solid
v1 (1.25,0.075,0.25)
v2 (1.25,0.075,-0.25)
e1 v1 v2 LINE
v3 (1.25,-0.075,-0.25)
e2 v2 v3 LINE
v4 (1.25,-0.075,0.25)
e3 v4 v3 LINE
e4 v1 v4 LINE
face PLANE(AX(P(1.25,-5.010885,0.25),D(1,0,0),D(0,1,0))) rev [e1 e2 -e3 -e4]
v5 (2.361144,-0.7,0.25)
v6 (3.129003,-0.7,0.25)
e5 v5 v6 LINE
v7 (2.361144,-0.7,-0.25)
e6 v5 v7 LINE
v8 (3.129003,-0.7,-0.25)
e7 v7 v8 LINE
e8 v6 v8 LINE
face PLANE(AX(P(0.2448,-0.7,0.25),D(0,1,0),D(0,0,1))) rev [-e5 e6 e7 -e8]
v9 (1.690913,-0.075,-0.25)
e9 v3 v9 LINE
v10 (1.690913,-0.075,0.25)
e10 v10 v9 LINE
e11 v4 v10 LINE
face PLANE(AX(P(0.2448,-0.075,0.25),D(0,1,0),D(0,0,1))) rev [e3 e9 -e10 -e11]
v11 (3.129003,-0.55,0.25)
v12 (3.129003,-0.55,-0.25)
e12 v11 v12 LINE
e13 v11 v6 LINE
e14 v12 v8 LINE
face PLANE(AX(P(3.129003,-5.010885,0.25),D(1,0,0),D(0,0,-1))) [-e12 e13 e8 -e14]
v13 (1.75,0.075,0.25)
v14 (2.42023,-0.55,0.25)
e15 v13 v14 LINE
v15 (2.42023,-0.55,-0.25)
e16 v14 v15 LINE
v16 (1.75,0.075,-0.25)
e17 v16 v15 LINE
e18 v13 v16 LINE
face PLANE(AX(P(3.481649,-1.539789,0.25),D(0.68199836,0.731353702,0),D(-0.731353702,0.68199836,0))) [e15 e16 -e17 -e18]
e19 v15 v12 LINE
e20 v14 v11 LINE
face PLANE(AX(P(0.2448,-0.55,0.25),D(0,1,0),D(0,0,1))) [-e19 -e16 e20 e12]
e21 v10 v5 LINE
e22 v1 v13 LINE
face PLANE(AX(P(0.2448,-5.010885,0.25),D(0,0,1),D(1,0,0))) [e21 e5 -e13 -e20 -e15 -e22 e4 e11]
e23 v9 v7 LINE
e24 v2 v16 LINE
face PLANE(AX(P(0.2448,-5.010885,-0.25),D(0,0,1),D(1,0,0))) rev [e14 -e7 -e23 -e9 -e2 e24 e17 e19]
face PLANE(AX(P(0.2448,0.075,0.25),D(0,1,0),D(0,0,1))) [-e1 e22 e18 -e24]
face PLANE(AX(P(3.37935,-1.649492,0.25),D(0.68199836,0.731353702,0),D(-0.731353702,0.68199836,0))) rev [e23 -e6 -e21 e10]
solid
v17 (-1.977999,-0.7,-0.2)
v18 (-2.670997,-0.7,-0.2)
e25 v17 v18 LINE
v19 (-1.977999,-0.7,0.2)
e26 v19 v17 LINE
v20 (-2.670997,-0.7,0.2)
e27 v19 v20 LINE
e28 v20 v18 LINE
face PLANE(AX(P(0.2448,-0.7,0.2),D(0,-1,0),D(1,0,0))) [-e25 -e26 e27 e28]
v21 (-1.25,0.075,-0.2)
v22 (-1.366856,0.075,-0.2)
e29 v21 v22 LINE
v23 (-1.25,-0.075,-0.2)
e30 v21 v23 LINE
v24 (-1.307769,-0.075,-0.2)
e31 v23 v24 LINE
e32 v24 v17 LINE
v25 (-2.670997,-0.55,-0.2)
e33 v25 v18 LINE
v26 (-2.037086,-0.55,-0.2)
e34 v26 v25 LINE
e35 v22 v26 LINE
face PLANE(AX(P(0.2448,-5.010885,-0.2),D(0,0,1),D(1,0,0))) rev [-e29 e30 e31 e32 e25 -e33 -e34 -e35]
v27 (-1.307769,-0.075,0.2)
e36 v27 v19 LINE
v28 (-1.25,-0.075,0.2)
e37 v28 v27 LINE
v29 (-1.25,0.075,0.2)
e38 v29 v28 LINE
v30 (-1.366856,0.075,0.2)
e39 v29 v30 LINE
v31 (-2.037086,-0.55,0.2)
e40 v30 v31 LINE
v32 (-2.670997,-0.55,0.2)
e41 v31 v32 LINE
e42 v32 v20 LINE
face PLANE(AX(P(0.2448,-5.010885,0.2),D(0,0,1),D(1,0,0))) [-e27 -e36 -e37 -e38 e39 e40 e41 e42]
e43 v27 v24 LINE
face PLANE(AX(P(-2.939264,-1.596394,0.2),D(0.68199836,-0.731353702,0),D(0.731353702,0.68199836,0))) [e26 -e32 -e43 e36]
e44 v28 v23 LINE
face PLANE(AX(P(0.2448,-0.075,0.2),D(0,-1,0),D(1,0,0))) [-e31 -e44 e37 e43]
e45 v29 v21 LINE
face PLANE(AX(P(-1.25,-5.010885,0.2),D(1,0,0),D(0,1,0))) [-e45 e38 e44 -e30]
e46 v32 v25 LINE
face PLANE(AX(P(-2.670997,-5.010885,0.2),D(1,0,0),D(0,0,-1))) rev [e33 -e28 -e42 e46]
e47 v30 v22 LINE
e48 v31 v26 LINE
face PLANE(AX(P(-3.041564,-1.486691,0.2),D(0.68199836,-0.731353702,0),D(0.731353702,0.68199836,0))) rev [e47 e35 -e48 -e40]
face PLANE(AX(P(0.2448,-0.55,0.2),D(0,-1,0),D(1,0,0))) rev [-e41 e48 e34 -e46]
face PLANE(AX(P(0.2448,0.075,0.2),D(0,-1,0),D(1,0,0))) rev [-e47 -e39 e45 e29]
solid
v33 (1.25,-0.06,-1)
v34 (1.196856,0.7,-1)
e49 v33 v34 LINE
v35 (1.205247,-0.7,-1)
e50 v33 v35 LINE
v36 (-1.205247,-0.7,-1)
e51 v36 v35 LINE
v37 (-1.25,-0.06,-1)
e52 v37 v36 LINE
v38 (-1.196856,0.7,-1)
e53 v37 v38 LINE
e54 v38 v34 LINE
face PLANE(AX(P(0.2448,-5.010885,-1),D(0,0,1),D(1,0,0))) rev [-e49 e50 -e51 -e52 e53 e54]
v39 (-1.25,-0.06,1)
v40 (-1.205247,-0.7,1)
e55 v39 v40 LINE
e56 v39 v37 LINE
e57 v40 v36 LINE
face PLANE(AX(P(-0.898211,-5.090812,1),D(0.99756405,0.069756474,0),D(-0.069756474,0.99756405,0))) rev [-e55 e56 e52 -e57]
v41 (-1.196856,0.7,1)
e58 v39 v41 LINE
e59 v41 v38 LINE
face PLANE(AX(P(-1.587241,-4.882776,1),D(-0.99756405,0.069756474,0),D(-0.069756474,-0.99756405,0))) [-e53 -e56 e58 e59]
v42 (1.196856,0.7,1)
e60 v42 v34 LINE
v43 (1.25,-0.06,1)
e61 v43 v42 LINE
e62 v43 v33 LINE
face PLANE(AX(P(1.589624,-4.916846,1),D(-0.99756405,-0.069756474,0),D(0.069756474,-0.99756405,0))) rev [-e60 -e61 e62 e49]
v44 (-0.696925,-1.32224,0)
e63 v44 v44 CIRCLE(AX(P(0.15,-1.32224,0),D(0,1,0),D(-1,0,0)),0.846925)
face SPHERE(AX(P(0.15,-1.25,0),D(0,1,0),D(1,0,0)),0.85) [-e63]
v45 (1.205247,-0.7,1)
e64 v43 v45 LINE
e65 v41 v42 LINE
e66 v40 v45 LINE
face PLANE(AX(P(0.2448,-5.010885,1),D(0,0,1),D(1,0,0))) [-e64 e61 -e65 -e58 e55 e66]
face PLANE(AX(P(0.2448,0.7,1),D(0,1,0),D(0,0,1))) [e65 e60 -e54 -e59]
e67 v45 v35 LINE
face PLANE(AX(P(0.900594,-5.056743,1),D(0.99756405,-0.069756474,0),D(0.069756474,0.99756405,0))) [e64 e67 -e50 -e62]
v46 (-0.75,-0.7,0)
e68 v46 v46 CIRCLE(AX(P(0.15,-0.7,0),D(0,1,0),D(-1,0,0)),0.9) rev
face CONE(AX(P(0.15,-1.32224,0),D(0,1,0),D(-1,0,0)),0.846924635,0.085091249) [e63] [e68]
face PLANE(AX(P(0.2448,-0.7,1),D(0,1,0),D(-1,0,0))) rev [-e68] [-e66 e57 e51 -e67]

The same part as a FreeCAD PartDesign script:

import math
import FreeCAD as App
import Part
import Sketcher
Q = App.Units.Quantity


def add_polygon(sketch, points):
    """Adds a closed chain of lines whose ends are joined by coincident constraints."""
    first, n = sketch.GeometryCount, len(points)
    for a, b in zip(points, points[1:] + points[:1]):
        sketch.addGeometry(Part.LineSegment(App.Vector(*a, 0), App.Vector(*b, 0)), False)
    for i in range(n):
        sketch.addConstraint(Sketcher.Constraint("Coincident", first + i, 2, first + (i + 1) % n, 1))

doc = App.newDocument("Part")
body = doc.addObject("PartDesign::Body", "Body")

sketch1 = doc.addObject("Sketcher::SketchObject", "Sketch")
body.addObject(sketch1)
sketch1.AttachmentSupport = (doc.XY_Plane, [""])
sketch1.MapMode = "FlatFace"
add_polygon(sketch1, [(1.196856, 0.7), (-1.196856, 0.7), (-1.25, -0.06), (-1.205247, -0.7), (1.205247, -0.7), (1.25, -0.06)])
sketch1.addConstraint(Sketcher.Constraint("Horizontal", 0))
sketch1.addConstraint(Sketcher.Constraint("Horizontal", 3))
sketch1.addConstraint(Sketcher.Constraint("Symmetric", 1, 2, 4, 2, -2))
sketch1.addConstraint(Sketcher.Constraint("Parallel", 1, 4))
sketch1.addConstraint(Sketcher.Constraint("Parallel", 2, 5))
sketch1.addConstraint(Sketcher.Constraint("Equal", 2, 4))
sketch1.addConstraint(Sketcher.Constraint("Angle", 1, Q("-94 deg")))
sketch1.addConstraint(Sketcher.Constraint("DistanceY", -1, 1, 0, 2, Q("0.7 mm")))
sketch1.addConstraint(Sketcher.Constraint("DistanceY", 2, 2, -1, 1, Q("0.7 mm")))
sketch1.addConstraint(Sketcher.Constraint("DistanceX", 1, 2, 4, 2, Q("2.5 mm")))
sketch1.addConstraint(Sketcher.Constraint("DistanceY", 1, 2, -1, 1, Q("0.06 mm")))
pad1 = doc.addObject("PartDesign::Pad", "Pad")
body.addObject(pad1)
pad1.Profile = sketch1
pad1.Length = 2
pad1.Midplane = True

sketch2 = doc.addObject("Sketcher::SketchObject", "Sketch001")
body.addObject(sketch2)
sketch2.AttachmentSupport = (doc.XY_Plane, [""])
sketch2.MapMode = "FlatFace"
sketch2.addGeometry(Part.LineSegment(App.Vector(1.05, -0.7, 0), App.Vector(0.15, -0.7, 0)), False)
sketch2.addGeometry(Part.LineSegment(App.Vector(0.15, -0.7, 0), App.Vector(0.15, -2.1, 0)), False)
sketch2.addGeometry(Part.ArcOfCircle(Part.Circle(App.Vector(0.15, -1.25, 0), App.Vector(0, 0, 1), 0.85), math.radians(-90), math.radians(-4.875369)), False)
sketch2.addGeometry(Part.LineSegment(App.Vector(0.996925, -1.32224, 0), App.Vector(1.05, -0.7, 0)), False)
sketch2.addGeometry(Part.LineSegment(App.Vector(0.15, -0.7, 0), App.Vector(0.15, -2.1, 0)), True)
sketch2.addConstraint(Sketcher.Constraint("Coincident", 0, 2, 1, 1))
sketch2.addConstraint(Sketcher.Constraint("Coincident", 1, 2, 2, 1))
sketch2.addConstraint(Sketcher.Constraint("Tangent", 2, 2, 3, 1))
sketch2.addConstraint(Sketcher.Constraint("Coincident", 3, 2, 0, 1))
sketch2.addConstraint(Sketcher.Constraint("Horizontal", 0))
sketch2.addConstraint(Sketcher.Constraint("Vertical", 1))
sketch2.addConstraint(Sketcher.Constraint("Vertical", 4))
sketch2.addConstraint(Sketcher.Constraint("Coincident", 4, 1, 0, 2))
sketch2.addConstraint(Sketcher.Constraint("Vertical", 2, 3, 0, 2))
sketch2.addConstraint(Sketcher.Constraint("Equal", 1, 4))
sketch2.addConstraint(Sketcher.Constraint("Radius", 2, Q("0.85 mm")))
sketch2.addConstraint(Sketcher.Constraint("DistanceX", 0, 2, 0, 1, Q("0.9 mm")))
sketch2.addConstraint(Sketcher.Constraint("DistanceY", 1, 2, 1, 1, Q("1.4 mm")))
sketch2.addConstraint(Sketcher.Constraint("DistanceY", 0, 2, -1, 1, Q("0.7 mm")))
sketch2.addConstraint(Sketcher.Constraint("DistanceX", -1, 1, 2, 3, Q("0.15 mm")))
revolution = doc.addObject("PartDesign::Revolution", "Revolution")
body.addObject(revolution)
revolution.Profile = sketch2
revolution.ReferenceAxis = (sketch2, ["Axis0"])
revolution.Angle = 360
body2 = doc.addObject("PartDesign::Body", "Body001")

sketch3 = doc.addObject("Sketcher::SketchObject", "Sketch002")
body2.addObject(sketch3)
sketch3.AttachmentSupport = (doc.getObject("XY_Plane001"), [""])
sketch3.MapMode = "FlatFace"
add_polygon(sketch3, [(1.75, 0.075), (1.25, 0.075), (1.25, -0.075), (1.690913, -0.075), (2.361144, -0.7), (3.129003, -0.7), (3.129003, -0.55), (2.42023, -0.55)])
sketch3.addConstraint(Sketcher.Constraint("Horizontal", 0))
sketch3.addConstraint(Sketcher.Constraint("Vertical", 1))
sketch3.addConstraint(Sketcher.Constraint("Horizontal", 2))
sketch3.addConstraint(Sketcher.Constraint("Horizontal", 4))
sketch3.addConstraint(Sketcher.Constraint("Vertical", 5))
sketch3.addConstraint(Sketcher.Constraint("Horizontal", 6))
sketch3.addConstraint(Sketcher.Constraint("Parallel", 3, 7))
sketch3.addConstraint(Sketcher.Constraint("Equal", 1, 5))
sketch3.addConstraint(Sketcher.Constraint("Angle", 3, Q("-43 deg")))
sketch3.addConstraint(Sketcher.Constraint("DistanceX", 0, 2, 0, 1, Q("0.5 mm")))
sketch3.addConstraint(Sketcher.Constraint("DistanceY", 1, 2, 1, 1, Q("0.15 mm")))
sketch3.addConstraint(Sketcher.Constraint("DistanceY", 3, 2, -1, 1, Q("0.7 mm")))
sketch3.addConstraint(Sketcher.Constraint("DistanceX", -1, 1, 0, 2, Q("1.25 mm")))
sketch3.addConstraint(Sketcher.Constraint("DistanceY", -1, 1, 0, 2, Q("0.075 mm")))
sketch3.addConstraint(Sketcher.Constraint("DistanceX", 4, 1, 4, 2, Q("0.767859 mm")))
sketch3.addConstraint(Sketcher.Constraint("DistanceX", 2, 1, 2, 2, Q("0.440913 mm")))
pad2 = doc.addObject("PartDesign::Pad", "Pad001")
body2.addObject(pad2)
pad2.Profile = sketch3
pad2.Length = 0.5
pad2.Midplane = True
body3 = doc.addObject("PartDesign::Body", "Body002")

sketch4 = doc.addObject("Sketcher::SketchObject", "Sketch003")
body3.addObject(sketch4)
sketch4.AttachmentSupport = (doc.getObject("XY_Plane002"), [""])
sketch4.MapMode = "FlatFace"
add_polygon(sketch4, [(-1.25, 0.075), (-1.366856, 0.075), (-2.037086, -0.55), (-2.670997, -0.55), (-2.670997, -0.7), (-1.977999, -0.7), (-1.307769, -0.075), (-1.25, -0.075)])
sketch4.addConstraint(Sketcher.Constraint("Horizontal", 0))
sketch4.addConstraint(Sketcher.Constraint("Horizontal", 2))
sketch4.addConstraint(Sketcher.Constraint("Vertical", 3))
sketch4.addConstraint(Sketcher.Constraint("Horizontal", 4))
sketch4.addConstraint(Sketcher.Constraint("Horizontal", 6))
sketch4.addConstraint(Sketcher.Constraint("Vertical", 7))
sketch4.addConstraint(Sketcher.Constraint("Parallel", 1, 5))
sketch4.addConstraint(Sketcher.Constraint("Equal", 3, 7))
sketch4.addConstraint(Sketcher.Constraint("Angle", 1, Q("-137 deg")))
sketch4.addConstraint(Sketcher.Constraint("DistanceY", 3, 2, 3, 1, Q("0.15 mm")))
sketch4.addConstraint(Sketcher.Constraint("DistanceY", 3, 2, -1, 1, Q("0.7 mm")))
sketch4.addConstraint(Sketcher.Constraint("DistanceX", 6, 2, -1, 1, Q("1.25 mm")))
sketch4.addConstraint(Sketcher.Constraint("DistanceY", -1, 1, 0, 2, Q("0.075 mm")))
sketch4.addConstraint(Sketcher.Constraint("DistanceX", 4, 2, -1, 1, Q("1.977999 mm")))
sketch4.addConstraint(Sketcher.Constraint("DistanceX", 2, 2, 2, 1, Q("0.633911 mm")))
sketch4.addConstraint(Sketcher.Constraint("DistanceX", 0, 2, 0, 1, Q("0.116856 mm")))
pad3 = doc.addObject("PartDesign::Pad", "Pad002")
body3.addObject(pad3)
pad3.Profile = sketch4
pad3.Length = 0.4
pad3.Midplane = True

doc.recompute()
